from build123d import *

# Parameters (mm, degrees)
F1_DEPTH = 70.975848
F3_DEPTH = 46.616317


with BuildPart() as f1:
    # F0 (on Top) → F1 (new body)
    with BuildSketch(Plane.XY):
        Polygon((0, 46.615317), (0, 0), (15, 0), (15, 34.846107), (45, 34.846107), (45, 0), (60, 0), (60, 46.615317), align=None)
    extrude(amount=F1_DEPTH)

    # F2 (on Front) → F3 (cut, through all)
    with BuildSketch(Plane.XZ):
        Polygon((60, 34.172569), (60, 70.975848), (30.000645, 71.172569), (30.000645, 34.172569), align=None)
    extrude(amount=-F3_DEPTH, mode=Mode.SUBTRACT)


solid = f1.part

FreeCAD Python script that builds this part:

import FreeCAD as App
import Part
import Sketcher
from FreeCAD import Vector

doc = App.newDocument("Part")
body = doc.addObject("PartDesign::Body", "Body")

# Sketch on XY plane
sketch1 = body.newObject("Sketcher::SketchObject", "Sketch")
sketch1.AttachmentSupport = (doc.getObject("XY_Plane"), [""])
sketch1.MapMode = "FlatFace"
sketch1.addGeometry([
    Part.LineSegment(Vector(0, 47, 0), Vector(0, 0, 0)),  # 0
    Part.LineSegment(Vector(0, 0, 0), Vector(15, 0, 0)),  # 1
    Part.LineSegment(Vector(15, 0, 0), Vector(15, 35, 0)),  # 2
    Part.LineSegment(Vector(15, 35, 0), Vector(45, 35, 0)),  # 3
    Part.LineSegment(Vector(45, 35, 0), Vector(45, 0, 0)),  # 4
    Part.LineSegment(Vector(45, 0, 0), Vector(60, 0, 0)),  # 5
    Part.LineSegment(Vector(60, 0, 0), Vector(60, 47, 0)),  # 6
    Part.LineSegment(Vector(60, 47, 0), Vector(0, 47, 0)),  # 7
], False)
sketch1.addConstraint([
    Sketcher.Constraint("Coincident", 0, 2, 1, 1),
    Sketcher.Constraint("Coincident", 1, 2, 2, 1),
    Sketcher.Constraint("Coincident", 2, 2, 3, 1),
    Sketcher.Constraint("Coincident", 3, 2, 4, 1),
    Sketcher.Constraint("Coincident", 4, 2, 5, 1),
    Sketcher.Constraint("Coincident", 5, 2, 6, 1),
    Sketcher.Constraint("Coincident", 6, 2, 7, 1),
    Sketcher.Constraint("Coincident", 7, 2, 0, 1),
    Sketcher.Constraint("Vertical", 0),
    Sketcher.Constraint("Horizontal", 1),
    Sketcher.Constraint("Vertical", 2),
    Sketcher.Constraint("Horizontal", 3),
    Sketcher.Constraint("Vertical", 4),
    Sketcher.Constraint("Horizontal", 5),
    Sketcher.Constraint("Vertical", 6),
    Sketcher.Constraint("Horizontal", 7),
    Sketcher.Constraint("Coincident", 0, 2, -1, 1),
    Sketcher.Constraint("PointOnObject", 4, 2, -1),
    Sketcher.Constraint("Equal", 1, 5),
    Sketcher.Constraint("DistanceX", 1, 1, 1, 2, 15.0),
    Sketcher.Constraint("DistanceX", 3, 1, 3, 2, 30.0),
    Sketcher.Constraint("DistanceY", 0, 2, 0, 1, 46.615317),
    Sketcher.Constraint("DistanceY", 2, 1, 2, 2, 34.846107),
])
pad1 = body.newObject("PartDesign::Pad", "Pad")
pad1.Profile = sketch1
pad1.Length = 70.975848

# Sketch on XZ plane
sketch2 = body.newObject("Sketcher::SketchObject", "Sketch001")
sketch2.AttachmentSupport = (doc.getObject("XZ_Plane"), [""])
sketch2.MapMode = "FlatFace"
sketch2.addGeometry([
    Part.LineSegment(Vector(60, 34, 0), Vector(60, 71, 0)),
    Part.LineSegment(Vector(60, 71, 0), Vector(30, 71, 0)),
    Part.LineSegment(Vector(30, 71, 0), Vector(30, 34, 0)),
    Part.LineSegment(Vector(30, 34, 0), Vector(60, 34, 0)),
], False)
sketch2.addConstraint([
    Sketcher.Constraint("Coincident", 0, 2, 1, 1),
    Sketcher.Constraint("Coincident", 1, 2, 2, 1),
    Sketcher.Constraint("Coincident", 2, 2, 3, 1),
    Sketcher.Constraint("Coincident", 3, 2, 0, 1),
    Sketcher.Constraint("Vertical", 0),
    Sketcher.Constraint("Vertical", 2),
    Sketcher.Constraint("Horizontal", 3),
    Sketcher.Constraint("DistanceY", 2, 2, 2, 1, 37.0),
    Sketcher.Constraint("Distance", 1, 30.0),
    Sketcher.Constraint("DistanceX", -1, 1, 0, 2, 60.0),
    Sketcher.Constraint("DistanceY", 0, 1, 0, 2, 36.803279),
    Sketcher.Constraint("DistanceY", -1, 1, 0, 2, 70.975848),
])
pocket1 = body.newObject("PartDesign::Pocket", "Pocket")
pocket1.Profile = sketch2
pocket1.Type = "ThroughAll"

doc.recompute()
